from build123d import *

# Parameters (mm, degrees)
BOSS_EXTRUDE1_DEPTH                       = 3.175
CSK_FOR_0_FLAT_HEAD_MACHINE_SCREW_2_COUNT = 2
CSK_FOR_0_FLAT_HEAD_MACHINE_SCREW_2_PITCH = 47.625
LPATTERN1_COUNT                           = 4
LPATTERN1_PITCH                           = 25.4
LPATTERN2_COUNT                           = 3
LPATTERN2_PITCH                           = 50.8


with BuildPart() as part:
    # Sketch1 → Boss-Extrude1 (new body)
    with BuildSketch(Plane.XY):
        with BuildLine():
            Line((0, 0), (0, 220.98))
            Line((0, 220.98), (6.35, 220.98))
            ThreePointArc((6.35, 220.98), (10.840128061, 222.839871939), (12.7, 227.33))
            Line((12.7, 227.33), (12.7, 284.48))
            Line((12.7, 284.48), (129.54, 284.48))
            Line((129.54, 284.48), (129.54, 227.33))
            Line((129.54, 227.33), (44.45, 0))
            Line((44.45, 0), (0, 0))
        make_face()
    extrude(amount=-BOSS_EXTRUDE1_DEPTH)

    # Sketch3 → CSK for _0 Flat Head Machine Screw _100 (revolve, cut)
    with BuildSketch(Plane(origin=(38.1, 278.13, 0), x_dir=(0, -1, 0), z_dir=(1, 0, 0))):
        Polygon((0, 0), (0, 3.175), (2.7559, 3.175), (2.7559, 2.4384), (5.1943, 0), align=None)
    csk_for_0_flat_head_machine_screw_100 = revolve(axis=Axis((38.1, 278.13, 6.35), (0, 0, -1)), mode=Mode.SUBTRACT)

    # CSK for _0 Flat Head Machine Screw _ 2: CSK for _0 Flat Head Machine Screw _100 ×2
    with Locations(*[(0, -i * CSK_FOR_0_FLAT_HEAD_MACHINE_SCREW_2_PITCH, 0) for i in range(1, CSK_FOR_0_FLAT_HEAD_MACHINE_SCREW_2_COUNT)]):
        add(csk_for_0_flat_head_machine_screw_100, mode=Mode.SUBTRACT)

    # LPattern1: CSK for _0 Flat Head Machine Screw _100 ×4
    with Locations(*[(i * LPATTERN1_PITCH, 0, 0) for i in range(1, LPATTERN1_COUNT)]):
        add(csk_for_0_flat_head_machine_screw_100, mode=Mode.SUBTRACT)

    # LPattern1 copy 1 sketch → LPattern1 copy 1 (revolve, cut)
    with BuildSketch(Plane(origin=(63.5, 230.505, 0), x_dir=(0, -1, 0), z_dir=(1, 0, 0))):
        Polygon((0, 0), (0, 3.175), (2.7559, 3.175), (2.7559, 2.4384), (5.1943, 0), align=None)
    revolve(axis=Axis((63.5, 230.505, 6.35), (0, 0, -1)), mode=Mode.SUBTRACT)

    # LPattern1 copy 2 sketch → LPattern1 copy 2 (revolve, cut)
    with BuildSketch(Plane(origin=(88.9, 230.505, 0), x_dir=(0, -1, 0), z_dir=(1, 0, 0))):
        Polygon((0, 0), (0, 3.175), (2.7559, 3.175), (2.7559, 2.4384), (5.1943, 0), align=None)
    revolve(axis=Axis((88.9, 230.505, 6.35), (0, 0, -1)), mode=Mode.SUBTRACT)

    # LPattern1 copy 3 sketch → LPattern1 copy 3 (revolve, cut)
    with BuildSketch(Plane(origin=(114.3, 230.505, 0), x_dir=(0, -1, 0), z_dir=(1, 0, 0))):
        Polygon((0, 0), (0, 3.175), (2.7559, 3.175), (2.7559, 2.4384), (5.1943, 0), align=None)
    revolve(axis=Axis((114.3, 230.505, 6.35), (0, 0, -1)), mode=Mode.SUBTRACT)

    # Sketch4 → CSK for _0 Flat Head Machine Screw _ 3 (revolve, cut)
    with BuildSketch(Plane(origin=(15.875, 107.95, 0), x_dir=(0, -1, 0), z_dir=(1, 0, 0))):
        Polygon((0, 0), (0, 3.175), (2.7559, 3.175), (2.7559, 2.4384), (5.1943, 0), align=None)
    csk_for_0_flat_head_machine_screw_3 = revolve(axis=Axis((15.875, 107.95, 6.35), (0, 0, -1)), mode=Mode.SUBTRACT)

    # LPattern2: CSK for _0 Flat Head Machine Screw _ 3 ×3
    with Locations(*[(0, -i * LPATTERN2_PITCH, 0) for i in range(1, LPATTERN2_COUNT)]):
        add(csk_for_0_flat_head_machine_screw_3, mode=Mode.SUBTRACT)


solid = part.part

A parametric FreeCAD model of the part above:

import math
import FreeCAD as App
import Part
import Sketcher

V = App.Vector
Q = App.Units.Quantity


def add_polygon(sketch, points):
    """Adds a closed chain of lines whose ends are joined by coincident constraints."""
    first, n = sketch.GeometryCount, len(points)
    for a, b in zip(points, points[1:] + points[:1]):
        sketch.addGeometry(Part.LineSegment(App.Vector(*a, 0), App.Vector(*b, 0)), False)
    for i in range(n):
        sketch.addConstraint(Sketcher.Constraint("Coincident", first + i, 2, first + (i + 1) % n, 1))

doc = App.newDocument("Part")
body = doc.addObject("PartDesign::Body", "Body")

# Sketch on XY plane
sketch1 = body.newObject("Sketcher::SketchObject", "Sketch")
sketch1.AttachmentSupport = (doc.getObject("XY_Plane"), [""])
sketch1.MapMode = "FlatFace"
sketch1.addGeometry([
    Part.LineSegment(V(0, 221, 0), V(0, 0, 0)),  # 0
    Part.LineSegment(V(0, 0, 0), V(44, 0, 0)),  # 1
    Part.LineSegment(V(44, 0, 0), V(130, 227, 0)),  # 2
    Part.LineSegment(V(130, 227, 0), V(130, 284, 0)),  # 3
    Part.LineSegment(V(130, 284, 0), V(13, 284, 0)),  # 4
    Part.LineSegment(V(13, 284, 0), V(13, 227, 0)),  # 5
    Part.ArcOfCircle(Part.Circle(V(6, 227, 0), V(0, 0, 1), 6), math.radians(-90), math.radians(0)),  # 6
    Part.LineSegment(V(6, 221, 0), V(0, 221, 0)),  # 7
], False)
sketch1.addConstraint([
    Sketcher.Constraint("Coincident", 0, 2, 1, 1),
    Sketcher.Constraint("Coincident", 1, 2, 2, 1),
    Sketcher.Constraint("Coincident", 2, 2, 3, 1),
    Sketcher.Constraint("Coincident", 3, 2, 4, 1),
    Sketcher.Constraint("Coincident", 4, 2, 5, 1),
    Sketcher.Constraint("Tangent", 5, 2, 6, 2),
    Sketcher.Constraint("Tangent", 6, 1, 7, 1),
    Sketcher.Constraint("Coincident", 7, 2, 0, 1),
    Sketcher.Constraint("Vertical", 0),
    Sketcher.Constraint("Horizontal", 1),
    Sketcher.Constraint("Vertical", 3),
    Sketcher.Constraint("Horizontal", 4),
    Sketcher.Constraint("Vertical", 5),
    Sketcher.Constraint("Horizontal", 7),
    Sketcher.Constraint("Coincident", 0, 2, -1, 1),
    Sketcher.Constraint("Horizontal", 6, 3, 2, 2),
    Sketcher.Constraint("Radius", 6, Q("0.25 in")),
    Sketcher.Constraint("DistanceX", 4, 2, 4, 1, Q("4.6 in")),
    Sketcher.Constraint("DistanceY", 0, 2, 0, 1, Q("8.7 in")),
    Sketcher.Constraint("DistanceX", 1, 1, 1, 2, Q("1.75 in")),
    Sketcher.Constraint("DistanceX", 7, 2, 7, 1, Q("0.25 in")),
    Sketcher.Constraint("DistanceY", 3, 1, 3, 2, Q("2.25 in")),
])
pad1 = body.newObject("PartDesign::Pad", "Pad")
pad1.Profile = sketch1
pad1.Length = Q("0.125 in")
pad1.Reversed = True

# Sketch on YZ plane
sketch2 = body.newObject("Sketcher::SketchObject", "Sketch001")
sketch2.AttachmentSupport = (doc.getObject("YZ_Plane"), [""])
sketch2.MapMode = "FlatFace"
sketch2.AttachmentOffset = App.Placement(V(0, 0, 1.5 * 25.4), App.Rotation())
add_polygon(sketch2, [(278.1, -3.2), (278.1, 0), (272.9, 0), (275.4, -2.4), (275.4, -3.2)])  # lines 0-4
sketch2.addGeometry(Part.LineSegment(V(278.1, 0, 0), V(278.1, -3.2, 0)), True)  # axis
sketch2.addConstraint([
    Sketcher.Constraint("Vertical", 0),
    Sketcher.Constraint("Horizontal", 1),
    Sketcher.Constraint("Vertical", 3),
    Sketcher.Constraint("Horizontal", 4),
    Sketcher.Constraint("Vertical", 5),
    Sketcher.Constraint("Coincident", 5, 1, 0, 2),
    Sketcher.Constraint("PointOnObject", 0, 2, -1),
    Sketcher.Constraint("Horizontal", 3, 2, 5, 2),
    Sketcher.Constraint("Angle", 2, Q("-45 deg")),
    Sketcher.Constraint("DistanceY", 0, 1, 0, 2, Q("0.125 in")),
    Sketcher.Constraint("DistanceY", 3, 2, 3, 1, Q("0.029 in")),
    Sketcher.Constraint("DistanceX", -1, 1, 0, 2, Q("10.95 in")),
    Sketcher.Constraint("DistanceX", 1, 2, 1, 1, Q("0.2045 in")),
])
groove = body.newObject("PartDesign::Groove", "Groove")
groove.Profile = sketch2
groove.ReferenceAxis = (sketch2, ["Axis0"])
groove.Angle = 360
doc.recompute()

linearpattern = body.newObject("PartDesign::LinearPattern", "LinearPattern")
linearpattern.Originals = [groove]
linearpattern.Direction = (doc.getObject("Y_Axis"), [""])
linearpattern.Mode = "offset"
linearpattern.Offset = Q("1.875 in")
linearpattern.Occurrences = 2
linearpattern.Reversed = True
body.Tip = linearpattern
doc.recompute()

linearpattern2 = body.newObject("PartDesign::LinearPattern", "LinearPattern001")
linearpattern2.Originals = [groove]
linearpattern2.Direction = (doc.getObject("X_Axis"), [""])
linearpattern2.Mode = "offset"
linearpattern2.Offset = Q("1 in")
linearpattern2.Occurrences = 4
body.Tip = linearpattern2

# Sketch on YZ plane
sketch3 = body.newObject("Sketcher::SketchObject", "Sketch002")
sketch3.AttachmentSupport = (doc.getObject("YZ_Plane"), [""])
sketch3.MapMode = "FlatFace"
sketch3.AttachmentOffset = App.Placement(V(0, 0, 2.5 * 25.4), App.Rotation())
add_polygon(sketch3, [(230.5, -3.2), (230.5, 0), (225.3, 0), (227.7, -2.4), (227.7, -3.2)])  # lines 0-4
sketch3.addGeometry(Part.LineSegment(V(230.5, 0, 0), V(230.5, -3.2, 0)), True)  # axis
sketch3.addConstraint([
    Sketcher.Constraint("Vertical", 0),
    Sketcher.Constraint("Horizontal", 1),
    Sketcher.Constraint("Vertical", 3),
    Sketcher.Constraint("Horizontal", 4),
    Sketcher.Constraint("Vertical", 5),
    Sketcher.Constraint("Coincident", 5, 1, 0, 2),
    Sketcher.Constraint("PointOnObject", 0, 2, -1),
    Sketcher.Constraint("Horizontal", 3, 2, 5, 2),
    Sketcher.Constraint("Angle", 2, Q("-45 deg")),
    Sketcher.Constraint("DistanceY", 0, 1, 0, 2, Q("0.125 in")),
    Sketcher.Constraint("DistanceY", 3, 2, 3, 1, Q("0.029 in")),
    Sketcher.Constraint("DistanceX", 1, 2, 1, 1, Q("0.2045 in")),
    Sketcher.Constraint("DistanceX", -1, 1, 0, 2, Q("9.075 in")),
])
groove2 = body.newObject("PartDesign::Groove", "Groove001")
groove2.Profile = sketch3
groove2.ReferenceAxis = (sketch3, ["Axis0"])
groove2.Angle = 360

# Sketch on YZ plane
sketch4 = body.newObject("Sketcher::SketchObject", "Sketch003")
sketch4.AttachmentSupport = (doc.getObject("YZ_Plane"), [""])
sketch4.MapMode = "FlatFace"
sketch4.AttachmentOffset = App.Placement(V(0, 0, 3.5 * 25.4), App.Rotation())
add_polygon(sketch4, [(230.5, -3.2), (230.5, 0), (225.3, 0), (227.7, -2.4), (227.7, -3.2)])  # lines 0-4
sketch4.addGeometry(Part.LineSegment(V(230.5, 0, 0), V(230.5, -3.2, 0)), True)  # axis
sketch4.addConstraint([
    Sketcher.Constraint("Vertical", 0),
    Sketcher.Constraint("Horizontal", 1),
    Sketcher.Constraint("Vertical", 3),
    Sketcher.Constraint("Horizontal", 4),
    Sketcher.Constraint("Vertical", 5),
    Sketcher.Constraint("Coincident", 5, 1, 0, 2),
    Sketcher.Constraint("PointOnObject", 0, 2, -1),
    Sketcher.Constraint("Horizontal", 3, 2, 5, 2),
    Sketcher.Constraint("Angle", 2, Q("-45 deg")),
    Sketcher.Constraint("DistanceY", 0, 1, 0, 2, Q("0.125 in")),
    Sketcher.Constraint("DistanceY", 3, 2, 3, 1, Q("0.029 in")),
    Sketcher.Constraint("DistanceX", 1, 2, 1, 1, Q("0.2045 in")),
    Sketcher.Constraint("DistanceX", -1, 1, 0, 2, Q("9.075 in")),
])
groove3 = body.newObject("PartDesign::Groove", "Groove002")
groove3.Profile = sketch4
groove3.ReferenceAxis = (sketch4, ["Axis0"])
groove3.Angle = 360

# Sketch on YZ plane
sketch5 = body.newObject("Sketcher::SketchObject", "Sketch004")
sketch5.AttachmentSupport = (doc.getObject("YZ_Plane"), [""])
sketch5.MapMode = "FlatFace"
sketch5.AttachmentOffset = App.Placement(V(0, 0, 4.5 * 25.4), App.Rotation())
add_polygon(sketch5, [(230.5, -3.2), (230.5, 0), (225.3, 0), (227.7, -2.4), (227.7, -3.2)])  # lines 0-4
sketch5.addGeometry(Part.LineSegment(V(230.5, 0, 0), V(230.5, -3.2, 0)), True)  # axis
sketch5.addConstraint([
    Sketcher.Constraint("Vertical", 0),
    Sketcher.Constraint("Horizontal", 1),
    Sketcher.Constraint("Vertical", 3),
    Sketcher.Constraint("Horizontal", 4),
    Sketcher.Constraint("Vertical", 5),
    Sketcher.Constraint("Coincident", 5, 1, 0, 2),
    Sketcher.Constraint("PointOnObject", 0, 2, -1),
    Sketcher.Constraint("Horizontal", 3, 2, 5, 2),
    Sketcher.Constraint("Angle", 2, Q("-45 deg")),
    Sketcher.Constraint("DistanceY", 0, 1, 0, 2, Q("0.125 in")),
    Sketcher.Constraint("DistanceY", 3, 2, 3, 1, Q("0.029 in")),
    Sketcher.Constraint("DistanceX", 1, 2, 1, 1, Q("0.2045 in")),
    Sketcher.Constraint("DistanceX", -1, 1, 0, 2, Q("9.075 in")),
])
groove4 = body.newObject("PartDesign::Groove", "Groove003")
groove4.Profile = sketch5
groove4.ReferenceAxis = (sketch5, ["Axis0"])
groove4.Angle = 360

# Sketch on YZ plane
sketch6 = body.newObject("Sketcher::SketchObject", "Sketch005")
sketch6.AttachmentSupport = (doc.getObject("YZ_Plane"), [""])
sketch6.MapMode = "FlatFace"
sketch6.AttachmentOffset = App.Placement(V(0, 0, 0.625 * 25.4), App.Rotation())
add_polygon(sketch6, [(108, -3.2), (108, 0), (102.8, 0), (105.2, -2.4), (105.2, -3.2)])  # lines 0-4
sketch6.addGeometry(Part.LineSegment(V(108, 0, 0), V(108, -3.2, 0)), True)  # axis
sketch6.addConstraint([
    Sketcher.Constraint("Vertical", 0),
    Sketcher.Constraint("Horizontal", 1),
    Sketcher.Constraint("Vertical", 3),
    Sketcher.Constraint("Horizontal", 4),
    Sketcher.Constraint("Vertical", 5),
    Sketcher.Constraint("Coincident", 5, 1, 0, 2),
    Sketcher.Constraint("PointOnObject", 0, 2, -1),
    Sketcher.Constraint("Horizontal", 3, 2, 5, 2),
    Sketcher.Constraint("Angle", 2, Q("-45 deg")),
    Sketcher.Constraint("DistanceY", 0, 1, 0, 2, Q("0.125 in")),
    Sketcher.Constraint("DistanceY", 3, 2, 3, 1, Q("0.029 in")),
    Sketcher.Constraint("DistanceX", -1, 1, 0, 2, Q("4.25 in")),
    Sketcher.Constraint("DistanceX", 1, 2, 1, 1, Q("0.2045 in")),
])
groove5 = body.newObject("PartDesign::Groove", "Groove004")
groove5.Profile = sketch6
groove5.ReferenceAxis = (sketch6, ["Axis0"])
groove5.Angle = 360
doc.recompute()

linearpattern3 = body.newObject("PartDesign::LinearPattern", "LinearPattern002")
linearpattern3.Originals = [groove5]
linearpattern3.Direction = (doc.getObject("Y_Axis"), [""])
linearpattern3.Mode = "offset"
linearpattern3.Offset = Q("2 in")
linearpattern3.Occurrences = 3
linearpattern3.Reversed = True
body.Tip = linearpattern3

doc.recompute()
